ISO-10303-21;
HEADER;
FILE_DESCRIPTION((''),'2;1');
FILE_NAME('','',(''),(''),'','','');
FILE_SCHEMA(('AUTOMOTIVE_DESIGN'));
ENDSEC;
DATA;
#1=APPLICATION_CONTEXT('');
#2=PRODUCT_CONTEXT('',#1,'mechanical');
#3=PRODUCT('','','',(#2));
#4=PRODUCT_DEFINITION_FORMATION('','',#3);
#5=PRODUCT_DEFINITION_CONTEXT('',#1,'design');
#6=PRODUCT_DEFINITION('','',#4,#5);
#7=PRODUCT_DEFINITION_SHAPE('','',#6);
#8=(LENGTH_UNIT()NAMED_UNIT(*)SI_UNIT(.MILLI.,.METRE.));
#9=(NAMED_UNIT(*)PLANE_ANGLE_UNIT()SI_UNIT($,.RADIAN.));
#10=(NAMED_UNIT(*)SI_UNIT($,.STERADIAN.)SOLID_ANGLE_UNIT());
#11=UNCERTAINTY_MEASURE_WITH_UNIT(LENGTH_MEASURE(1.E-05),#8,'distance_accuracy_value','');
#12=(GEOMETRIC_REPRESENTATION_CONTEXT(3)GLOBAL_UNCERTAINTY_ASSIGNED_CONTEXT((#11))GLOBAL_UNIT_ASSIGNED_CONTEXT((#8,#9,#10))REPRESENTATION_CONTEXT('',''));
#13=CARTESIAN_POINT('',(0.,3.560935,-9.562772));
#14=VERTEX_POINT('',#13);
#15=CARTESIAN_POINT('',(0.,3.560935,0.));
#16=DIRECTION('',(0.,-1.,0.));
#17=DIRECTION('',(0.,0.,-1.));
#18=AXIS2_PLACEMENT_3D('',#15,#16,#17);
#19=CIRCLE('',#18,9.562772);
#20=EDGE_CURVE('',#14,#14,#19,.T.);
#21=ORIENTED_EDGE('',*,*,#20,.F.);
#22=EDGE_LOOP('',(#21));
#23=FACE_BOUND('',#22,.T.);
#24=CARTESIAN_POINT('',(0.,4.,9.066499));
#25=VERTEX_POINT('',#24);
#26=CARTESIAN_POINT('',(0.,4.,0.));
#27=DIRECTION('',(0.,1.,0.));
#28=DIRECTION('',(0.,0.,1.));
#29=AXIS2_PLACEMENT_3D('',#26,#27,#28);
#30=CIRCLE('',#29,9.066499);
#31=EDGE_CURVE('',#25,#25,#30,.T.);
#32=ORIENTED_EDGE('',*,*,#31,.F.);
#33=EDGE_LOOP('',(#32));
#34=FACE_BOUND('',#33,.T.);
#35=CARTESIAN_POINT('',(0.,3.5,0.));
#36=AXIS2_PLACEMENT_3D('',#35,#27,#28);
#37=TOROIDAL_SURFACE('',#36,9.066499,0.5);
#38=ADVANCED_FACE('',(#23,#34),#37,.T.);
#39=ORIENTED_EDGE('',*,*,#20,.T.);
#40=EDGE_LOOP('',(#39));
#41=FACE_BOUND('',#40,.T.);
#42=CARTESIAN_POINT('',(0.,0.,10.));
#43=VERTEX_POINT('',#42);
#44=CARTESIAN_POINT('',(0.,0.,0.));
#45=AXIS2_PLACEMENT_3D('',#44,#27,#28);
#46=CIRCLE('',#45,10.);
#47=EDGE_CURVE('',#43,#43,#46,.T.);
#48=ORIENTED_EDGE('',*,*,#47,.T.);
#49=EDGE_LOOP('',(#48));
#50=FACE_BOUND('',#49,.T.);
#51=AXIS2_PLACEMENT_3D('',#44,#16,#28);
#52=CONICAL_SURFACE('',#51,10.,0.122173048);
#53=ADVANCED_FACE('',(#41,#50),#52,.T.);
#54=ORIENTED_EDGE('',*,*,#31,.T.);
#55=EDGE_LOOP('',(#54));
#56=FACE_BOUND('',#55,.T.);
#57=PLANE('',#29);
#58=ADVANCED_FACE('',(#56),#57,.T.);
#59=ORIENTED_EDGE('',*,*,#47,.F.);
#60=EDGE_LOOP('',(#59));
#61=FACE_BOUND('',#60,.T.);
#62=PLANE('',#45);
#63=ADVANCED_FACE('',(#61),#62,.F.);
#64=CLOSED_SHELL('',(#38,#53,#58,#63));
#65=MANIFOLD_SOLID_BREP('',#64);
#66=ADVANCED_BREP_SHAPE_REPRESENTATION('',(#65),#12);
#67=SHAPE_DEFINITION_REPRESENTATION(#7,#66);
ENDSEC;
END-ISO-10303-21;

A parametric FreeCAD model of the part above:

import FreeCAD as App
import Part
import Sketcher


def edges_at(feature, points):
    """Names of the edges that pass closest to the given points."""
    edges = feature.Shape.Edges
    near = lambda p: min(range(len(edges)), key=lambda i: edges[i].distToShape(Part.Vertex(*p))[0])
    return sorted({f"Edge{near(p) + 1}" for p in points})

doc = App.newDocument("Part")
params = doc.addObject("Spreadsheet::Sheet", "Params")
for row, (alias, value) in enumerate([
    ("sketch1_diameter", "20 mm"),
    ("pad1_length", "4 mm"),
    ("pad1_taper", "-7 deg"),
    ("fillet_radius", "0.5 mm"),
], start=1):
    params.set(f"A{row}", alias)
    params.set(f"B{row}", "=" + value)
    params.setAlias(f"B{row}", alias)

body = doc.addObject("PartDesign::Body", "Body")

sketch1 = body.newObject("Sketcher::SketchObject", "Sketch")
sketch1.AttachmentSupport = (doc.getObject("XZ_Plane"), [""])
sketch1.MapMode = "FlatFace"
sketch1.addGeometry(Part.Circle(App.Vector(0, 0, 0), App.Vector(0, 0, 1), 10), False)
sketch1.addConstraint(Sketcher.Constraint("Coincident", 0, 3, -1, 1))
sketch1.addConstraint(Sketcher.Constraint("Diameter", 0, 20.0))
sketch1.setExpression("Constraints[1]", "Params.sketch1_diameter")
pad1 = body.newObject("PartDesign::Pad", "Pad")
pad1.Profile = sketch1
pad1.setExpression("Length", "Params.pad1_length")
pad1.Reversed = True
pad1.setExpression("TaperAngle", "Params.pad1_taper")
doc.recompute()

fillet = body.newObject("PartDesign::Fillet", "Fillet")
fillet.Base = (pad1, edges_at(pad1, [(-9.509, 4, 0)]))
fillet.setExpression("Radius", "Params.fillet_radius")

doc.recompute()
